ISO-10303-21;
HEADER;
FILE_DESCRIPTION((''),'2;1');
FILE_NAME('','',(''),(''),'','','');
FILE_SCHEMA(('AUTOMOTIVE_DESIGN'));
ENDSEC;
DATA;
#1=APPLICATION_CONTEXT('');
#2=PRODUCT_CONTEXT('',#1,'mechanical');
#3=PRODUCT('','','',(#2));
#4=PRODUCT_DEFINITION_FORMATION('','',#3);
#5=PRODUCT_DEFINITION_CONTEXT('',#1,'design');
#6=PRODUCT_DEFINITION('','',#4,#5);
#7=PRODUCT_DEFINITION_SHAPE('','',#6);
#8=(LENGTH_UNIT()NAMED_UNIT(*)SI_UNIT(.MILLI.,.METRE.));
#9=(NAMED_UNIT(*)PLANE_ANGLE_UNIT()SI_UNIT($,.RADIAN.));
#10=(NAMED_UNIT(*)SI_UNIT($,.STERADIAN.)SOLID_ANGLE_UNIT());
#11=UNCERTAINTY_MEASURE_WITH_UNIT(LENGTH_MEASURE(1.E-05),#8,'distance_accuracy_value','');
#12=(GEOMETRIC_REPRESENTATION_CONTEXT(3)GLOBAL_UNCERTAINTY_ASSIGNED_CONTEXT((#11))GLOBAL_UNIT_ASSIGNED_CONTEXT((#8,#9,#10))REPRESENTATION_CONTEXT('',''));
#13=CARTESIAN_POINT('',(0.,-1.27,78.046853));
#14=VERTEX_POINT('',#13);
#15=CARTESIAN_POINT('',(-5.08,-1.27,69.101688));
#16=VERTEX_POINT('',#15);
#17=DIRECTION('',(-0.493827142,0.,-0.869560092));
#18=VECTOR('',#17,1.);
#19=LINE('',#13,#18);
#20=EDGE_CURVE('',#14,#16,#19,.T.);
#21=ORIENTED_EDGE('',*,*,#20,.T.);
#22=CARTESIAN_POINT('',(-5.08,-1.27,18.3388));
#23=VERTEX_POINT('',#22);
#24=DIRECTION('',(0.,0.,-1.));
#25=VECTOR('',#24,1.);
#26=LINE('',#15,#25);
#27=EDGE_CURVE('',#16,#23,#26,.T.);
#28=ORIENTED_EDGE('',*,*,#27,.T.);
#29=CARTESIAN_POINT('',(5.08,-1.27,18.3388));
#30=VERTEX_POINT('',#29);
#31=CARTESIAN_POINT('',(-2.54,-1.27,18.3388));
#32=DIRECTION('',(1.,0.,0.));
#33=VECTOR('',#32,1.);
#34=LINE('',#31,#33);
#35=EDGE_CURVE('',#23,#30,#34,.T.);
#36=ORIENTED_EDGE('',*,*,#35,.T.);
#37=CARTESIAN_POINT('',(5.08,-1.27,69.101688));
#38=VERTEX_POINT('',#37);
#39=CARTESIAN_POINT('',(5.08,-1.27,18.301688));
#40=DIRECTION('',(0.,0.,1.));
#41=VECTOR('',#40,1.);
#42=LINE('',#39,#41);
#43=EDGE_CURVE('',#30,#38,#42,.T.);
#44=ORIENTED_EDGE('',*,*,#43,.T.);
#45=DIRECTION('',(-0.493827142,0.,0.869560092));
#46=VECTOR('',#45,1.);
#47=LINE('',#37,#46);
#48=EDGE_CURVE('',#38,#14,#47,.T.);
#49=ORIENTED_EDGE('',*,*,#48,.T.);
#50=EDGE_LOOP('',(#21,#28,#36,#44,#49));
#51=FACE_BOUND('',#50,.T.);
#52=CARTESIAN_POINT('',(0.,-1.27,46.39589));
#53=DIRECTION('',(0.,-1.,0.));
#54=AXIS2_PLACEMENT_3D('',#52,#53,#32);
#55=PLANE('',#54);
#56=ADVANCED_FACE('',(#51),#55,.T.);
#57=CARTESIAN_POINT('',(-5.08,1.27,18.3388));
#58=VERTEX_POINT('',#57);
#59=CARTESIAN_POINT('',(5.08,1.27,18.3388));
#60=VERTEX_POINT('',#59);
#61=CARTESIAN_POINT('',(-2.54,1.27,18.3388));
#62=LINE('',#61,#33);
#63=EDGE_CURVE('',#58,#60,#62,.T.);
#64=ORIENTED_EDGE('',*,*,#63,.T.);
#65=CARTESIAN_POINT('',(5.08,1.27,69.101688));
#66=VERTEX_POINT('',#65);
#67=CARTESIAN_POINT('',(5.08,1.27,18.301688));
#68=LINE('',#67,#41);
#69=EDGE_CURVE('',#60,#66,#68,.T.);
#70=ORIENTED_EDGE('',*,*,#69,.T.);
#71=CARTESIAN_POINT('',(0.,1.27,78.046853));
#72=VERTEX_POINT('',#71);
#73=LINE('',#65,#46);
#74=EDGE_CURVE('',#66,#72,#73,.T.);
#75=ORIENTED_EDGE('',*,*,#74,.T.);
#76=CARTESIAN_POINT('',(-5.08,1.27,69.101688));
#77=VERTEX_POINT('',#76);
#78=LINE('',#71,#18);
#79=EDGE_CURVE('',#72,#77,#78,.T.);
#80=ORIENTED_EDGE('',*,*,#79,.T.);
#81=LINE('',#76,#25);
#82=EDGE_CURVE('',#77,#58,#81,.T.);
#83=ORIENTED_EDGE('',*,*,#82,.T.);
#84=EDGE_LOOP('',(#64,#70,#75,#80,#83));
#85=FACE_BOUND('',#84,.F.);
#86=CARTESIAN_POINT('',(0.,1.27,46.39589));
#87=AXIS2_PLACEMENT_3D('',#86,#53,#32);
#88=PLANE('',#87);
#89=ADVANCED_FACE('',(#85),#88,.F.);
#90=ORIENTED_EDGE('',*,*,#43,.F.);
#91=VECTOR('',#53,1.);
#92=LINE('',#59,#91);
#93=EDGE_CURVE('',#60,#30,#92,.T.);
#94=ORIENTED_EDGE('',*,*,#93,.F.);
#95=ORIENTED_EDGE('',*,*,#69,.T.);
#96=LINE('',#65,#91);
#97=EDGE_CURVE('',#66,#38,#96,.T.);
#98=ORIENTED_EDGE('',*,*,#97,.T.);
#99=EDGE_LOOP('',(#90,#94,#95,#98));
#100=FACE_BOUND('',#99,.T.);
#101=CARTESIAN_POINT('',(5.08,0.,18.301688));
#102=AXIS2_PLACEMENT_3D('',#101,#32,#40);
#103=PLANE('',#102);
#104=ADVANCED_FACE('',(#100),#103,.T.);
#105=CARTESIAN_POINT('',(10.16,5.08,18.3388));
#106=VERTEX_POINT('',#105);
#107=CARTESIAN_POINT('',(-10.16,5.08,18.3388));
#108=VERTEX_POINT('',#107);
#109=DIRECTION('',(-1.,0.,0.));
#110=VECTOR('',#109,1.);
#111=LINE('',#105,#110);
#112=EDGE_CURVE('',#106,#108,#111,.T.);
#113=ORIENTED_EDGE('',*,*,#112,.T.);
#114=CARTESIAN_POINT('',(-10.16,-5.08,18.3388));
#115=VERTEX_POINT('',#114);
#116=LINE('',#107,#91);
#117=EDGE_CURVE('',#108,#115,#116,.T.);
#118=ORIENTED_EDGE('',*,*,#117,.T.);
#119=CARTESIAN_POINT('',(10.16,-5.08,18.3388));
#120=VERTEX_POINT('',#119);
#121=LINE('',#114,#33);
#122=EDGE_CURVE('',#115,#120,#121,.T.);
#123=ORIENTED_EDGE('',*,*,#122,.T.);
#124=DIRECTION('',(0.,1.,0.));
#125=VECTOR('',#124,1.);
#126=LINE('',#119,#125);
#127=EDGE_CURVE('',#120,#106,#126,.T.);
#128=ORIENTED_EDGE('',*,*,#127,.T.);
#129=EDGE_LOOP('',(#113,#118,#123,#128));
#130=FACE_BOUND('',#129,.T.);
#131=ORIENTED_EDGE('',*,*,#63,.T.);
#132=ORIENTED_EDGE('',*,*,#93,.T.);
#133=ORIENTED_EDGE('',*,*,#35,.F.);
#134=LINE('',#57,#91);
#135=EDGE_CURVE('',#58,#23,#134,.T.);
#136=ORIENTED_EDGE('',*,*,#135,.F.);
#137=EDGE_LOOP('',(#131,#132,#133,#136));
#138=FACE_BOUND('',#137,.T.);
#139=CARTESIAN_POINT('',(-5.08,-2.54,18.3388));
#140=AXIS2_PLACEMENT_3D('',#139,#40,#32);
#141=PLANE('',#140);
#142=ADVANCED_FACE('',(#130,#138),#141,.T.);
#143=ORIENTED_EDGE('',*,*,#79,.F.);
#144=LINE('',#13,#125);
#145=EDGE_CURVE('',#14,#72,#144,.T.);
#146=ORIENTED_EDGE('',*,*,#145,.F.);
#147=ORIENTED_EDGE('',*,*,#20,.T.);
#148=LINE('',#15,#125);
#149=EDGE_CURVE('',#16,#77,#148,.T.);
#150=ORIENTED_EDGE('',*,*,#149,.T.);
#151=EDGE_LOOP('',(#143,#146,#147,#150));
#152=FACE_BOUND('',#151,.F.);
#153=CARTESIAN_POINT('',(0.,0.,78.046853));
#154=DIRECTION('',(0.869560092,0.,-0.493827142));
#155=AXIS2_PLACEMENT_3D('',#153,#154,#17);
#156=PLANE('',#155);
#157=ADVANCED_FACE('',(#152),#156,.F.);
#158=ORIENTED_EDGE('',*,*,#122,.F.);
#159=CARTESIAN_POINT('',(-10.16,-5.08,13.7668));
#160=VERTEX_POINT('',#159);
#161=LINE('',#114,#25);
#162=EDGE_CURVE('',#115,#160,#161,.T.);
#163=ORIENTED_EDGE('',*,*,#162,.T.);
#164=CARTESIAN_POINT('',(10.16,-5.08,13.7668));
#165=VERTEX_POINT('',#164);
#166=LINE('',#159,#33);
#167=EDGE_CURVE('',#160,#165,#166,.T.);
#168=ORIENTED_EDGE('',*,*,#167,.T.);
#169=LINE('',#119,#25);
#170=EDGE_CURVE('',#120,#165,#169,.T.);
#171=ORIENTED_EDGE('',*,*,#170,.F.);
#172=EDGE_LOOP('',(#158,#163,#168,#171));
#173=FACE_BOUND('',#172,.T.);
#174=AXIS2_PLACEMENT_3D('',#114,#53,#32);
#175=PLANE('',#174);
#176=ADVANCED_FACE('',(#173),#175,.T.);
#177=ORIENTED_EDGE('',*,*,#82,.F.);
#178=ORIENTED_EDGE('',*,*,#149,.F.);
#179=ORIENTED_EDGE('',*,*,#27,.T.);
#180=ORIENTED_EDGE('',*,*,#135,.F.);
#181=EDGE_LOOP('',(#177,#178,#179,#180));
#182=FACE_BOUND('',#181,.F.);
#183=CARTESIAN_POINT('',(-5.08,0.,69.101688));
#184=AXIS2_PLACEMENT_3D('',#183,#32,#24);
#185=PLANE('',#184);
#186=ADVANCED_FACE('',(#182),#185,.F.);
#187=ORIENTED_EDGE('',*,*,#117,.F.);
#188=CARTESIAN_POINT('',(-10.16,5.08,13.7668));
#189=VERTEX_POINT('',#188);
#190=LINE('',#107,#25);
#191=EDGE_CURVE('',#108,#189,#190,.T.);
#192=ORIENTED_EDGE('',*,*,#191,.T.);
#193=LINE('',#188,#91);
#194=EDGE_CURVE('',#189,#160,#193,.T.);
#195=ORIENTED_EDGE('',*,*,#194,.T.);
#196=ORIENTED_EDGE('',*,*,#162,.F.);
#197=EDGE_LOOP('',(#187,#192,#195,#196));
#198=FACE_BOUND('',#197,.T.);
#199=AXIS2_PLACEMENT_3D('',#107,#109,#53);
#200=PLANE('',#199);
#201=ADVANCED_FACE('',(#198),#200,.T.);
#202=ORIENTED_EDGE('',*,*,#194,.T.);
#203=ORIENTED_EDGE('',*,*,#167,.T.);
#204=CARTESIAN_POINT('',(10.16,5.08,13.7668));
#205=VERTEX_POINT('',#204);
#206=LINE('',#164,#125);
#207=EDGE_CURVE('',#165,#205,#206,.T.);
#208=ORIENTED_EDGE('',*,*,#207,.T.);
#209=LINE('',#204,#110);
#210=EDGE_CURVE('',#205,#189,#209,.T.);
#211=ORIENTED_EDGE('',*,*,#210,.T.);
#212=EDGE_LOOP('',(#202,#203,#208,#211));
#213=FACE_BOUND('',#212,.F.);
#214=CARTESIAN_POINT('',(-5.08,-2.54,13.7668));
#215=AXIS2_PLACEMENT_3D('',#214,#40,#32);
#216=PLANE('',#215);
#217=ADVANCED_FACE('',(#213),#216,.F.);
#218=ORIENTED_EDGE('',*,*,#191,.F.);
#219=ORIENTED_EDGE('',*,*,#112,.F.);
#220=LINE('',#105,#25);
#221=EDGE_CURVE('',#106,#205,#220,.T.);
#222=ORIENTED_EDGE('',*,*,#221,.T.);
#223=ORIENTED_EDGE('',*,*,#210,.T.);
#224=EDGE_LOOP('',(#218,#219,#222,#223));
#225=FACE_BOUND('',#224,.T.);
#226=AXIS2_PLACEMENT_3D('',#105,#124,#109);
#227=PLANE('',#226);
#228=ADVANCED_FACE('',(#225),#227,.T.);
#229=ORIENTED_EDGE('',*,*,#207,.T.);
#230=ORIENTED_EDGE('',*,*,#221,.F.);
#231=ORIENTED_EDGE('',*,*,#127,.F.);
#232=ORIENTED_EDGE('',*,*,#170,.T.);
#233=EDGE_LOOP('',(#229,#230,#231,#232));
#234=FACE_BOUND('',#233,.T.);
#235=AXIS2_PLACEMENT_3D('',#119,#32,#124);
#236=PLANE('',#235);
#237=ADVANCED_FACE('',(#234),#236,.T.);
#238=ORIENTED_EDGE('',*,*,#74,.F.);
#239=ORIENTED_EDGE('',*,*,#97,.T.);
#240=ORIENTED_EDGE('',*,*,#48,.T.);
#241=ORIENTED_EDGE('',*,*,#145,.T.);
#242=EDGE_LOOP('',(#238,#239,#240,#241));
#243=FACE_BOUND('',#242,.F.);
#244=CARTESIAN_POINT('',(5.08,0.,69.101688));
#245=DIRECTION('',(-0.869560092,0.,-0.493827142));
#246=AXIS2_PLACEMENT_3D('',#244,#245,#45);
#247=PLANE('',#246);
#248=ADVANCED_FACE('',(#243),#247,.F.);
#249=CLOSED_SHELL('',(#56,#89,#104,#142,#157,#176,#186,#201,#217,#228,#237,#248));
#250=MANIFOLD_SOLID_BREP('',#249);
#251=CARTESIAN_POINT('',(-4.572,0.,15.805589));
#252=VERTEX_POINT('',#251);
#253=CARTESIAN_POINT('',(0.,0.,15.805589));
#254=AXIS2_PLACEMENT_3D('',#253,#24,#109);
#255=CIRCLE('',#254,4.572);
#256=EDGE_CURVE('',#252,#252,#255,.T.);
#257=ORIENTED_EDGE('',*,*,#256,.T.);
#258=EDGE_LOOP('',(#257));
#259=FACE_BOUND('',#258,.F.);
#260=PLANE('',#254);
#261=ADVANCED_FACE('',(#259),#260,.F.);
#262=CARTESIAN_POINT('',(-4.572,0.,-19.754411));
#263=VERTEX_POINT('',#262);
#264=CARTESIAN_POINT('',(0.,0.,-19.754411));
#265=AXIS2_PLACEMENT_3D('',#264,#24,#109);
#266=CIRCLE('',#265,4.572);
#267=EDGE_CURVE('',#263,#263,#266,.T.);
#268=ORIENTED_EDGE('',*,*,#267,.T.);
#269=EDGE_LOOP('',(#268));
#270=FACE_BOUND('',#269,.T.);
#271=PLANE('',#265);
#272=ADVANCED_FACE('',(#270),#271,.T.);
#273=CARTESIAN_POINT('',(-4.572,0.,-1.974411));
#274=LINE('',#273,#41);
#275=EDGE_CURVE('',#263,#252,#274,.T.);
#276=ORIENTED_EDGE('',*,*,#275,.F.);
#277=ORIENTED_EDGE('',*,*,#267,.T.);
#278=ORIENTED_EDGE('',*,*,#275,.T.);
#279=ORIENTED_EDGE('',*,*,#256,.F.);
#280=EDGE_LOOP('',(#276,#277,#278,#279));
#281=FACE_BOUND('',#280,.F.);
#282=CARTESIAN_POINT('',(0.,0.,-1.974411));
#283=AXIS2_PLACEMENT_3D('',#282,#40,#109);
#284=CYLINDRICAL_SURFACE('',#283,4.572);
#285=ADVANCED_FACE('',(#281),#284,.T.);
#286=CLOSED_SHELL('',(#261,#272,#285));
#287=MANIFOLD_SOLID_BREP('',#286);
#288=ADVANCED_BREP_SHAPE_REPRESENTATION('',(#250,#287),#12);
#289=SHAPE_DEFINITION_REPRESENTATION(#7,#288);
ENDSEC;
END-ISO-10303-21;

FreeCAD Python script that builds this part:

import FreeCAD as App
import Part
import Sketcher
from FreeCAD import Vector
Q = App.Units.Quantity

doc = App.newDocument("Part")
body = doc.addObject("PartDesign::Body", "Body")

# Sketch on XZ plane
sketch1 = doc.addObject("Sketcher::SketchObject", "Sketch")
body.addObject(sketch1)
sketch1.AttachmentSupport = (doc.XZ_Plane, [""])
sketch1.MapMode = "FlatFace"
sketch1.addGeometry(Part.LineSegment(Vector(-4.572, 15.805589, 0), Vector(-4.572, -19.754411, 0)), False)
sketch1.addGeometry(Part.LineSegment(Vector(-4.572, -19.754411, 0), Vector(0, -19.754411, 0)), False)
sketch1.addGeometry(Part.LineSegment(Vector(0, -19.754411, 0), Vector(0, 15.805589, 0)), False)
sketch1.addGeometry(Part.LineSegment(Vector(0, 15.805589, 0), Vector(-4.572, 15.805589, 0)), False)
sketch1.addConstraint(Sketcher.Constraint("Coincident", 0, 2, 1, 1))
sketch1.addConstraint(Sketcher.Constraint("Coincident", 1, 2, 2, 1))
sketch1.addConstraint(Sketcher.Constraint("Coincident", 2, 2, 3, 1))
sketch1.addConstraint(Sketcher.Constraint("Coincident", 3, 2, 0, 1))
sketch1.addConstraint(Sketcher.Constraint("Vertical", 0))
sketch1.addConstraint(Sketcher.Constraint("Horizontal", 1))
sketch1.addConstraint(Sketcher.Constraint("Vertical", 2))
sketch1.addConstraint(Sketcher.Constraint("Horizontal", 3))
sketch1.addConstraint(Sketcher.Constraint("PointOnObject", 1, 2, -2))
sketch1.addConstraint(Sketcher.Constraint("DistanceY", 0, 2, 0, 1, Q("1.4 in")))
sketch1.addConstraint(Sketcher.Constraint("DistanceX", 1, 1, 1, 2, Q("0.18 in")))
sketch1.addConstraint(Sketcher.Constraint("DistanceY", 0, 2, -1, 1, Q("19.754411 mm")))
revolution = doc.addObject("PartDesign::Revolution", "Revolution")
body.addObject(revolution)
revolution.Profile = sketch1
revolution.ReferenceAxis = (sketch1, ["V_Axis"])
revolution.Angle = 360
body2 = doc.addObject("PartDesign::Body", "Body001")

# Sketch on XY plane
sketch2 = doc.addObject("Sketcher::SketchObject", "Sketch001")
body2.addObject(sketch2)
sketch2.AttachmentSupport = (doc.getObject("XY_Plane001"), [""])
sketch2.MapMode = "FlatFace"
sketch2.AttachmentOffset = App.Placement(Vector(0, 0, 0.722 * 25.4), App.Rotation())
sketch2.addGeometry(Part.LineSegment(Vector(-10.16, -5.08, 0), Vector(10.16, -5.08, 0)), False)
sketch2.addGeometry(Part.LineSegment(Vector(10.16, -5.08, 0), Vector(10.16, 5.08, 0)), False)
sketch2.addGeometry(Part.LineSegment(Vector(10.16, 5.08, 0), Vector(-10.16, 5.08, 0)), False)
sketch2.addGeometry(Part.LineSegment(Vector(-10.16, 5.08, 0), Vector(-10.16, -5.08, 0)), False)
sketch2.addConstraint(Sketcher.Constraint("Coincident", 0, 2, 1, 1))
sketch2.addConstraint(Sketcher.Constraint("Coincident", 1, 2, 2, 1))
sketch2.addConstraint(Sketcher.Constraint("Coincident", 2, 2, 3, 1))
sketch2.addConstraint(Sketcher.Constraint("Coincident", 3, 2, 0, 1))
sketch2.addConstraint(Sketcher.Constraint("Horizontal", 0))
sketch2.addConstraint(Sketcher.Constraint("Vertical", 1))
sketch2.addConstraint(Sketcher.Constraint("Horizontal", 2))
sketch2.addConstraint(Sketcher.Constraint("Vertical", 3))
sketch2.addConstraint(Sketcher.Constraint("Symmetric", 0, 2, 2, 2, -1, 1))
sketch2.addConstraint(Sketcher.Constraint("DistanceX", 0, 1, 0, 2, Q("0.8 in")))
sketch2.addConstraint(Sketcher.Constraint("DistanceY", 1, 1, 1, 2, Q("0.4 in")))
pad1 = doc.addObject("PartDesign::Pad", "Pad")
body2.addObject(pad1)
pad1.Profile = sketch2
pad1.Length = Q("0.18 in")
pad1.Reversed = True

# Sketch on XZ plane
sketch3 = doc.addObject("Sketcher::SketchObject", "Sketch002")
body2.addObject(sketch3)
sketch3.AttachmentSupport = (doc.getObject("XZ_Plane001"), [""])
sketch3.MapMode = "FlatFace"
sketch3.addGeometry(Part.LineSegment(Vector(-5.08, 18.301688, 0), Vector(5.08, 18.301688, 0)), False)
sketch3.addGeometry(Part.LineSegment(Vector(5.08, 18.301688, 0), Vector(5.08, 69.101688, 0)), False)
sketch3.addGeometry(Part.LineSegment(Vector(5.08, 69.101688, 0), Vector(0, 78.046853, 0)), False)
sketch3.addGeometry(Part.LineSegment(Vector(0, 78.046853, 0), Vector(-5.08, 69.101688, 0)), False)
sketch3.addGeometry(Part.LineSegment(Vector(-5.08, 69.101688, 0), Vector(-5.08, 18.301688, 0)), False)
sketch3.addConstraint(Sketcher.Constraint("Coincident", 0, 2, 1, 1))
sketch3.addConstraint(Sketcher.Constraint("Coincident", 1, 2, 2, 1))
sketch3.addConstraint(Sketcher.Constraint("Coincident", 2, 2, 3, 1))
sketch3.addConstraint(Sketcher.Constraint("Coincident", 3, 2, 4, 1))
sketch3.addConstraint(Sketcher.Constraint("Coincident", 4, 2, 0, 1))
sketch3.addConstraint(Sketcher.Constraint("Horizontal", 0))
sketch3.addConstraint(Sketcher.Constraint("Vertical", 1))
sketch3.addConstraint(Sketcher.Constraint("Vertical", 4))
sketch3.addConstraint(Sketcher.Constraint("Symmetric", 1, 2, 3, 2, -2))
sketch3.addConstraint(Sketcher.Constraint("PointOnObject", 2, 2, -2))
sketch3.addConstraint(Sketcher.Constraint("DistanceY", 1, 1, 1, 2, Q("2 in")))
sketch3.addConstraint(Sketcher.Constraint("DistanceX", 0, 1, 0, 2, Q("0.4 in")))
sketch3.addConstraint(Sketcher.Constraint("Distance", 2, Q("0.405 in")))
sketch3.addConstraint(Sketcher.Constraint("DistanceY", -1, 1, 0, 2, Q("18.301688 mm")))
pad2 = doc.addObject("PartDesign::Pad", "Pad001")
body2.addObject(pad2)
pad2.Profile = sketch3
pad2.Length = Q("0.05 in")
pad2.Reversed = True

# Sketch on XZ plane
sketch4 = doc.addObject("Sketcher::SketchObject", "Sketch003")
body2.addObject(sketch4)
sketch4.AttachmentSupport = (doc.getObject("XZ_Plane001"), [""])
sketch4.MapMode = "FlatFace"
sketch4.addGeometry(Part.LineSegment(Vector(-5.08, 18.301688, 0), Vector(5.08, 18.301688, 0)), False)
sketch4.addGeometry(Part.LineSegment(Vector(5.08, 18.301688, 0), Vector(5.08, 69.101688, 0)), False)
sketch4.addGeometry(Part.LineSegment(Vector(5.08, 69.101688, 0), Vector(0, 78.046853, 0)), False)
sketch4.addGeometry(Part.LineSegment(Vector(0, 78.046853, 0), Vector(-5.08, 69.101688, 0)), False)
sketch4.addGeometry(Part.LineSegment(Vector(-5.08, 69.101688, 0), Vector(-5.08, 18.301688, 0)), False)
sketch4.addConstraint(Sketcher.Constraint("Coincident", 0, 2, 1, 1))
sketch4.addConstraint(Sketcher.Constraint("Coincident", 1, 2, 2, 1))
sketch4.addConstraint(Sketcher.Constraint("Coincident", 2, 2, 3, 1))
sketch4.addConstraint(Sketcher.Constraint("Coincident", 3, 2, 4, 1))
sketch4.addConstraint(Sketcher.Constraint("Coincident", 4, 2, 0, 1))
sketch4.addConstraint(Sketcher.Constraint("Horizontal", 0))
sketch4.addConstraint(Sketcher.Constraint("Vertical", 1))
sketch4.addConstraint(Sketcher.Constraint("Vertical", 4))
sketch4.addConstraint(Sketcher.Constraint("Symmetric", 1, 2, 3, 2, -2))
sketch4.addConstraint(Sketcher.Constraint("PointOnObject", 2, 2, -2))
sketch4.addConstraint(Sketcher.Constraint("DistanceY", 1, 1, 1, 2, Q("2 in")))
sketch4.addConstraint(Sketcher.Constraint("DistanceX", 0, 1, 0, 2, Q("0.4 in")))
sketch4.addConstraint(Sketcher.Constraint("Distance", 2, Q("0.405 in")))
sketch4.addConstraint(Sketcher.Constraint("DistanceY", -1, 1, 0, 2, Q("18.301688 mm")))
pad3 = doc.addObject("PartDesign::Pad", "Pad002")
body2.addObject(pad3)
pad3.Profile = sketch4
pad3.Length = Q("0.05 in")

doc.recompute()
